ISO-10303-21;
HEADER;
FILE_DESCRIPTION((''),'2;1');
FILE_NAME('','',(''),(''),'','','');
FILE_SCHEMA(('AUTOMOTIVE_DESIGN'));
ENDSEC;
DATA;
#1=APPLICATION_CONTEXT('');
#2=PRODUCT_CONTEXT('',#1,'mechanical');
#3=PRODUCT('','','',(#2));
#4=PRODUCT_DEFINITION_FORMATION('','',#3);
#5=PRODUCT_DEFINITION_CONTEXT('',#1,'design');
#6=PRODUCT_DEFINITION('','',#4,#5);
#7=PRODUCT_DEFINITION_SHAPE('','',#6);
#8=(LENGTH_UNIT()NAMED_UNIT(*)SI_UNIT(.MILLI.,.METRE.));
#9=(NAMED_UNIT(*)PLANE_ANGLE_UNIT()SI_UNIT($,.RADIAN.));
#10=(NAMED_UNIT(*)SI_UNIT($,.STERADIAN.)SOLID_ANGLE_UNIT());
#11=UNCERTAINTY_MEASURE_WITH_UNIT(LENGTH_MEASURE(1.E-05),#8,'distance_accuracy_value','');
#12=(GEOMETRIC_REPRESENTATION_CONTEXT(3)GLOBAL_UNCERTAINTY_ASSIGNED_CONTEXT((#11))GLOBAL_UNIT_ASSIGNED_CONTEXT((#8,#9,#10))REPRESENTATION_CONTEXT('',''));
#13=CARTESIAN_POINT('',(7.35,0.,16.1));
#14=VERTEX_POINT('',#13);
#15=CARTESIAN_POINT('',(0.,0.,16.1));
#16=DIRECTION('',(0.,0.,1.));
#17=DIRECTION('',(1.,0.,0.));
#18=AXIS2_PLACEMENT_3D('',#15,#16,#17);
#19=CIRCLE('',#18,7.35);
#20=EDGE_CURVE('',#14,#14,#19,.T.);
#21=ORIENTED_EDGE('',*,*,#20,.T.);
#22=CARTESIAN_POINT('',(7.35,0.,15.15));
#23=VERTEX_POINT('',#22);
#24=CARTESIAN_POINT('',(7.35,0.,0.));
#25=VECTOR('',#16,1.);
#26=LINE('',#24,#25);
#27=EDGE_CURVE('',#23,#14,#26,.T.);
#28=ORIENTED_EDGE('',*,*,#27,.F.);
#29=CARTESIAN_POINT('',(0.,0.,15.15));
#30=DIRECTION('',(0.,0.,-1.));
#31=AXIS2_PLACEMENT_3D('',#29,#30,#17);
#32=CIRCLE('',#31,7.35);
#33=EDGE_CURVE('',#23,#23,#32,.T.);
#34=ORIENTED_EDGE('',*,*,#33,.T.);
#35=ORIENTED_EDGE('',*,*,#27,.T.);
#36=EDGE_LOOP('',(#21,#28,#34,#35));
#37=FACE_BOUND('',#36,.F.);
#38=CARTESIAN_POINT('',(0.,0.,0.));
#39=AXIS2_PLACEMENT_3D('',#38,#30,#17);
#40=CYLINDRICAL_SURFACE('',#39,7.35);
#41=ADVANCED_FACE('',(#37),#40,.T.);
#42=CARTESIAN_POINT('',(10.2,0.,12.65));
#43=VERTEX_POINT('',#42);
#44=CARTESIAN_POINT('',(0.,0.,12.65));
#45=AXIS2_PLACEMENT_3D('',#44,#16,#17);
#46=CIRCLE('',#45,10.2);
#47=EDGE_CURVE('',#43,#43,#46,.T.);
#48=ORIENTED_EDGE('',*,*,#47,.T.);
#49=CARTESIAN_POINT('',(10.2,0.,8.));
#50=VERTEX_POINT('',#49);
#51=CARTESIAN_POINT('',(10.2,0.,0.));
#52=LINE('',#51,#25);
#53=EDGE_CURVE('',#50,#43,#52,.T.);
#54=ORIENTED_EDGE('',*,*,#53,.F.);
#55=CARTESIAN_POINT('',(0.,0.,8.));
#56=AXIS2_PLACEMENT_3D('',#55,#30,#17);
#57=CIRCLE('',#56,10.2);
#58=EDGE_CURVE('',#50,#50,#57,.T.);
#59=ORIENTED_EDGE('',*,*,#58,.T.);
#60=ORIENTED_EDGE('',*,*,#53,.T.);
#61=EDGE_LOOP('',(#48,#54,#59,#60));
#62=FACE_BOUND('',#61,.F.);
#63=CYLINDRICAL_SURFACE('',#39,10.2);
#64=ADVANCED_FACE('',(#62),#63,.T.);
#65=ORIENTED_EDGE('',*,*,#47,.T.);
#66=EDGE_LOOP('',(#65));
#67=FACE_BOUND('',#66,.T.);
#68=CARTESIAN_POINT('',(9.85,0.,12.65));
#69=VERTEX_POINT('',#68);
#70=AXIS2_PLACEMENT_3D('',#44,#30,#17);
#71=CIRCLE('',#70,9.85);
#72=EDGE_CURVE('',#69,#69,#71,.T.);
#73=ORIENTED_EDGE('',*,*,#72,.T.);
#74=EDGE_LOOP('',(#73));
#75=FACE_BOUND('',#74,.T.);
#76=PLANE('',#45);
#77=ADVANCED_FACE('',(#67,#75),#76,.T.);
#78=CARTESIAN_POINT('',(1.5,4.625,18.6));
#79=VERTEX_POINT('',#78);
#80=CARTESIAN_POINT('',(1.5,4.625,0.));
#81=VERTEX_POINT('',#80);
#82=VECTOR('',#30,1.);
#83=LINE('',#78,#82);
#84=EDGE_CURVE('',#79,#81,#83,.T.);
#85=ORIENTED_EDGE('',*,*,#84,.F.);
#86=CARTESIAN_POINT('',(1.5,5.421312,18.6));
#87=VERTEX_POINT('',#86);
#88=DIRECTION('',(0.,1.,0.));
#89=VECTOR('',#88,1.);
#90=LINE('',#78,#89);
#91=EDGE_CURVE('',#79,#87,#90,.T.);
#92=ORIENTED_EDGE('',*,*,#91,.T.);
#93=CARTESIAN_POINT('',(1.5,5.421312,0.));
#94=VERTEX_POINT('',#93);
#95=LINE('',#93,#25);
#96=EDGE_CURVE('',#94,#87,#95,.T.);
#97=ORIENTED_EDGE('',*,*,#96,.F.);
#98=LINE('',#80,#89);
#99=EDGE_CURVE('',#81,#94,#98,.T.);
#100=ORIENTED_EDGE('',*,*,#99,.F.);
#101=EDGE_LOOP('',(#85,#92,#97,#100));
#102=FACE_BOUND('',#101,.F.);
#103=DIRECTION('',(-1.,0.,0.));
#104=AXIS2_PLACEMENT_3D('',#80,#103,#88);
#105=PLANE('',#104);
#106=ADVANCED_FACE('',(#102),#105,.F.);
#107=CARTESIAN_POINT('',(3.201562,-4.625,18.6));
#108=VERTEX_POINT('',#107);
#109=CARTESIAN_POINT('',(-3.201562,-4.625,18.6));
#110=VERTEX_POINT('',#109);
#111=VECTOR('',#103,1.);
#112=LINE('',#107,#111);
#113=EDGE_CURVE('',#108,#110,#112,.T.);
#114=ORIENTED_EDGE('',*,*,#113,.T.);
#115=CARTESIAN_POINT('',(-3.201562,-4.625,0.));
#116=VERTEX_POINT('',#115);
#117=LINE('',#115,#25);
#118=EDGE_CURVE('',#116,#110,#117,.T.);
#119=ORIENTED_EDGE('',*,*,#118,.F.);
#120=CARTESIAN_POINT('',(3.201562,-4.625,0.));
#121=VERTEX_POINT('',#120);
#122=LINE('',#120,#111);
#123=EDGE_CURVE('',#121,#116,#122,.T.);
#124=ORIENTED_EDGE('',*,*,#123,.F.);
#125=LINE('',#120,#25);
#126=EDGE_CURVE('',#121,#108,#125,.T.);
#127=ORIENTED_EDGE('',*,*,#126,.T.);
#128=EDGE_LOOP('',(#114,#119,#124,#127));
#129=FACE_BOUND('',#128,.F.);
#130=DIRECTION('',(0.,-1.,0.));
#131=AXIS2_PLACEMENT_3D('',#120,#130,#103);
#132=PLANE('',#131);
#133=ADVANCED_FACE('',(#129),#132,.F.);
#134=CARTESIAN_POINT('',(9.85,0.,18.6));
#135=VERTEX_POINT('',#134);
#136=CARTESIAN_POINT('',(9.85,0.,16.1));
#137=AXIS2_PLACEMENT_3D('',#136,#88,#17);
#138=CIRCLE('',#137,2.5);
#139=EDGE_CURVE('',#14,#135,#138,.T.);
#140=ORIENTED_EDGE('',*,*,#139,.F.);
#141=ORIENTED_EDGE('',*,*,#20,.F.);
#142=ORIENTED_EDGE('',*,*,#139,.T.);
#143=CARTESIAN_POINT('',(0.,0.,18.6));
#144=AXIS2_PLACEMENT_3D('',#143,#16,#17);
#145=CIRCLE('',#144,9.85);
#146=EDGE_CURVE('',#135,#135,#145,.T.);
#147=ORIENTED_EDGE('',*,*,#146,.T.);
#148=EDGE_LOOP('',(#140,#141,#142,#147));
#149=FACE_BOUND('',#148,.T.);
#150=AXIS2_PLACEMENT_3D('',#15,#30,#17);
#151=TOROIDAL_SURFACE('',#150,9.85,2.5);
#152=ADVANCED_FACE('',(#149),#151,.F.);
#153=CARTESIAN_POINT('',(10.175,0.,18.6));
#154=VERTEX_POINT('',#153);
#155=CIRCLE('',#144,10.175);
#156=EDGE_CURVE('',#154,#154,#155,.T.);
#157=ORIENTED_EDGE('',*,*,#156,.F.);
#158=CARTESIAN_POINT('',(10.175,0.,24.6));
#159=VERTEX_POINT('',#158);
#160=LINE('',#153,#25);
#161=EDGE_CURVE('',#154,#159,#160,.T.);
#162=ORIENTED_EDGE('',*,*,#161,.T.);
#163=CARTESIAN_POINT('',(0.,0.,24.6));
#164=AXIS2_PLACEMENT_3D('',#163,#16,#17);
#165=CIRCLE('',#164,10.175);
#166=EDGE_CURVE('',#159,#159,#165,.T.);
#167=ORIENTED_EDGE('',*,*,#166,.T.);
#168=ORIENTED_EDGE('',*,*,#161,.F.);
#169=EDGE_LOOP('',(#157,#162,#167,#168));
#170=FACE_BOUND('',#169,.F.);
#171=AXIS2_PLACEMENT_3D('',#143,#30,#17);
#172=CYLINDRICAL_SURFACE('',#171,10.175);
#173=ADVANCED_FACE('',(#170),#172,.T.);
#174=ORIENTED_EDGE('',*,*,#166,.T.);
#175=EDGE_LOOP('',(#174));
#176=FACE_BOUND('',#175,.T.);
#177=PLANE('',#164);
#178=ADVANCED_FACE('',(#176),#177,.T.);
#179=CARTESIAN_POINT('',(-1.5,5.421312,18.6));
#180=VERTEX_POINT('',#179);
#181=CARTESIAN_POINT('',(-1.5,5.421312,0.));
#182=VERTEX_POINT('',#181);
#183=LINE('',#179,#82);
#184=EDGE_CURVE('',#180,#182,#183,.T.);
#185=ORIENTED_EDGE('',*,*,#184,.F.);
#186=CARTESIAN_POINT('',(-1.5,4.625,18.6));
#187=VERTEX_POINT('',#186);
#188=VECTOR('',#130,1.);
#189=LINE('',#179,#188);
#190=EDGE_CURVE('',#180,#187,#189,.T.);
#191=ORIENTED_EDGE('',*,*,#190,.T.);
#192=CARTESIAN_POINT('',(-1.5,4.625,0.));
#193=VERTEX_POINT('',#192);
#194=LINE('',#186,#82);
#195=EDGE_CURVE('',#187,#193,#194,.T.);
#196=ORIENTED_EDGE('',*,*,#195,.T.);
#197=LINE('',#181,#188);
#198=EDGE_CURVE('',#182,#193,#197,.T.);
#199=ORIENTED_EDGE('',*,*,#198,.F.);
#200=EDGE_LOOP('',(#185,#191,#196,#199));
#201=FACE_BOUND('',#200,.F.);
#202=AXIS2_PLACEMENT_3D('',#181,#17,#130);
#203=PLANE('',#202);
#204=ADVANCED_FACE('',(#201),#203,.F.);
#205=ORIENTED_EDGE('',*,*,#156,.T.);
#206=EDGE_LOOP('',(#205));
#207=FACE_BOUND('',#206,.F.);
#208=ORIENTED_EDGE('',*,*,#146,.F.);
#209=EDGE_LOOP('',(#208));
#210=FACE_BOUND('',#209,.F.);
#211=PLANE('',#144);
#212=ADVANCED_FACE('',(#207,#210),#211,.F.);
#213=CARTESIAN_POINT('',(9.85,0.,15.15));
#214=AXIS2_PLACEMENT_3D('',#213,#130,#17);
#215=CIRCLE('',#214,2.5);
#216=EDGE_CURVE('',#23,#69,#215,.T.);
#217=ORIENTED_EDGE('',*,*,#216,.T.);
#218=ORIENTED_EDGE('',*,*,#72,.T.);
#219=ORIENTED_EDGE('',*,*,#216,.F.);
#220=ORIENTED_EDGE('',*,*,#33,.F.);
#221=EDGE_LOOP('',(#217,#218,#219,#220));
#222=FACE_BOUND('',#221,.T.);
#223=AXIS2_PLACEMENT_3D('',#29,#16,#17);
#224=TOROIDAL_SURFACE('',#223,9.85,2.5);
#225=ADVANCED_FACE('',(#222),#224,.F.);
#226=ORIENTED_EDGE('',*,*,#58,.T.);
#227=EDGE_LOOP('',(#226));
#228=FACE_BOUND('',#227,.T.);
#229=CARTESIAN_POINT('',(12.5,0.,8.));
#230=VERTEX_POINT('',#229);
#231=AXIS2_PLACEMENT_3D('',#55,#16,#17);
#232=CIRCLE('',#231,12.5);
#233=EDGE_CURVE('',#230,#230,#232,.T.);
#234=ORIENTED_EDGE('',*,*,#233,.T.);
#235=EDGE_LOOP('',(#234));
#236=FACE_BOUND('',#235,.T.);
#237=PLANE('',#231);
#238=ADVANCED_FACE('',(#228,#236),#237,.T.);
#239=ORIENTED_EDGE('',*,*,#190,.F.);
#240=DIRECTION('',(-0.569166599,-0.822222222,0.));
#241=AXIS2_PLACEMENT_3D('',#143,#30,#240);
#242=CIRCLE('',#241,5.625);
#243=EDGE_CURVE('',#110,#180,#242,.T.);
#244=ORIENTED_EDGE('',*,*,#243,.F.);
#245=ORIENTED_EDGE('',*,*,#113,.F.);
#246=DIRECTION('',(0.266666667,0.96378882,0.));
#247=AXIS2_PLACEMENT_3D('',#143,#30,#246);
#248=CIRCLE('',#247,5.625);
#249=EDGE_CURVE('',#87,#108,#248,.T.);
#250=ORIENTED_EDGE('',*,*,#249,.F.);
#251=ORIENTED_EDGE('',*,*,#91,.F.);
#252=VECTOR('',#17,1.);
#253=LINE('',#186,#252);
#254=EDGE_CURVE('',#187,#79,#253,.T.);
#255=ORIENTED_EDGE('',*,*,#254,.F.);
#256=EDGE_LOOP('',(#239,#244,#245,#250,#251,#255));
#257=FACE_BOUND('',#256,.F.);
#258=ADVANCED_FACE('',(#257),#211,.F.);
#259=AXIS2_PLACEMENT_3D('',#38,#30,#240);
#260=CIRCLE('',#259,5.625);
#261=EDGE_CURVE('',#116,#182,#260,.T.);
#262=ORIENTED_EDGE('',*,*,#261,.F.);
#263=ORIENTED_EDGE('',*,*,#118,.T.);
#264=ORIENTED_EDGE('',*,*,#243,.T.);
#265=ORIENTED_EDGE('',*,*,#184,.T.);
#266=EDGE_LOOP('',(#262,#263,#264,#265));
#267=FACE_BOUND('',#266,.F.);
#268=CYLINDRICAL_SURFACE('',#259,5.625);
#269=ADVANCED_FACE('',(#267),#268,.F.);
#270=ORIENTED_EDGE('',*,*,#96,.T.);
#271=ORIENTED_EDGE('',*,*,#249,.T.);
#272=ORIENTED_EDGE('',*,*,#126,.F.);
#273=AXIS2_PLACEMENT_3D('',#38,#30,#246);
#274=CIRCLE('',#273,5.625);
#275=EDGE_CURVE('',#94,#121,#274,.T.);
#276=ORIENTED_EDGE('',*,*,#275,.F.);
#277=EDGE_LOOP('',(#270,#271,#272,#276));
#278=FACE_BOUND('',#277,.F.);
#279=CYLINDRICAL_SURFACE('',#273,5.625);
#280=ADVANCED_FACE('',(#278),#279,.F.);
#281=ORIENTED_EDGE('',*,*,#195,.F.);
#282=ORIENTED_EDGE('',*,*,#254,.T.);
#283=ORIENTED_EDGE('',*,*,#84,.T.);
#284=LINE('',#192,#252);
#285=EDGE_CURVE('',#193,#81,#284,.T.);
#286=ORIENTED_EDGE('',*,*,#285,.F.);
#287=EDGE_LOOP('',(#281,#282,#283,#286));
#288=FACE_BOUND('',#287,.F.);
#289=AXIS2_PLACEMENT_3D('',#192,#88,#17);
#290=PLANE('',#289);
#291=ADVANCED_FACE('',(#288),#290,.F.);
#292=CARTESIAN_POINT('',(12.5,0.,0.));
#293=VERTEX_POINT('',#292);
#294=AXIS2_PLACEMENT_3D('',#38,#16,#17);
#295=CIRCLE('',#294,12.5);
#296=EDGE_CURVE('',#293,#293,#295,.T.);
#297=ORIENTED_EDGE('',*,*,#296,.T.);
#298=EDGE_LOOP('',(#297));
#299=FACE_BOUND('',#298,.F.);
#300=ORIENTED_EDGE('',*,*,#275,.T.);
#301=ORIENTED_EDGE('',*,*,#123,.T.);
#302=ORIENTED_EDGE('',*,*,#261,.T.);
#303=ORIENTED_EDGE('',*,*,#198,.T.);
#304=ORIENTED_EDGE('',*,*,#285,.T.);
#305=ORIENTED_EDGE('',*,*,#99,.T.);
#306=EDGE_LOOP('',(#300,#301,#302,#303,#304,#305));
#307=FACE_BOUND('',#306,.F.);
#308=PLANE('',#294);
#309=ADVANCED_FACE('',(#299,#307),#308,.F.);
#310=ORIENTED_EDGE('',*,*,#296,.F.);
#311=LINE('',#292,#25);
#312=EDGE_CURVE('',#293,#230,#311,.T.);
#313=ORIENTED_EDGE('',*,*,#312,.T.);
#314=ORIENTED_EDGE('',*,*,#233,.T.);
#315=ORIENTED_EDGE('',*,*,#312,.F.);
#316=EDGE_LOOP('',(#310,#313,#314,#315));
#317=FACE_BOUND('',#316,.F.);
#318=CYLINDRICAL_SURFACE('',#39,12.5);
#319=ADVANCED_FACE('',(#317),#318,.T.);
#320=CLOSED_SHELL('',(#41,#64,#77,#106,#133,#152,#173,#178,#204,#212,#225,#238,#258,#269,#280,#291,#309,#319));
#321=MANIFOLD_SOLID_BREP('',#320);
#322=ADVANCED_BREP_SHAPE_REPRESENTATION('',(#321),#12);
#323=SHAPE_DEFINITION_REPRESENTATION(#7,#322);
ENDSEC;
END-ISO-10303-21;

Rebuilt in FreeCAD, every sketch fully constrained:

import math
import FreeCAD as App
import Part
import Sketcher
Q = App.Units.Quantity


def edges_at(feature, points):
    """Names of the edges that pass closest to the given points."""
    edges = feature.Shape.Edges
    near = lambda p: min(range(len(edges)), key=lambda i: edges[i].distToShape(Part.Vertex(*p))[0])
    return sorted({f"Edge{near(p) + 1}" for p in points})

doc = App.newDocument("Part")
body = doc.addObject("PartDesign::Body", "Body")

sketch1 = body.newObject("Sketcher::SketchObject", "Sketch")
sketch1.AttachmentSupport = (doc.getObject("XY_Plane"), [""])
sketch1.MapMode = "FlatFace"
sketch1.addGeometry([
    Part.Circle(App.Vector(0, 0, 0), App.Vector(0, 0, 1), 12.5),
    Part.LineSegment(App.Vector(1.5, 4.6, 0), App.Vector(1.5, 5.4, 0)),
    Part.ArcOfCircle(Part.Circle(App.Vector(0, 0, 0), App.Vector(0, 0, 1), 5.6), math.radians(-55), math.radians(75)),
    Part.LineSegment(App.Vector(3.2, -4.6, 0), App.Vector(-3.2, -4.6, 0)),
    Part.ArcOfCircle(Part.Circle(App.Vector(0, 0, 0), App.Vector(0, 0, 1), 5.6), math.radians(105), math.radians(235)),
    Part.LineSegment(App.Vector(-1.5, 5.4, 0), App.Vector(-1.5, 4.6, 0)),
    Part.LineSegment(App.Vector(-1.5, 4.6, 0), App.Vector(1.5, 4.6, 0)),
], False)
sketch1.addConstraint([
    Sketcher.Constraint("Coincident", 1, 2, 2, 2),
    Sketcher.Constraint("Coincident", 2, 1, 3, 1),
    Sketcher.Constraint("Coincident", 3, 2, 4, 2),
    Sketcher.Constraint("Coincident", 4, 1, 5, 1),
    Sketcher.Constraint("Coincident", 5, 2, 6, 1),
    Sketcher.Constraint("Coincident", 6, 2, 1, 1),
    Sketcher.Constraint("Vertical", 1),
    Sketcher.Constraint("Horizontal", 3),
    Sketcher.Constraint("Vertical", 5),
    Sketcher.Constraint("Horizontal", 6),
    Sketcher.Constraint("Coincident", 0, 3, -1, 1),
    Sketcher.Constraint("Coincident", 2, 3, -1, 1),
    Sketcher.Constraint("Coincident", 4, 3, -1, 1),
    Sketcher.Constraint("Equal", 2, 4),
    Sketcher.Constraint("Horizontal", 1, 2, 4, 1),
    Sketcher.Constraint("Diameter", 0, Q("25 mm")),
    Sketcher.Constraint("DistanceX", 6, 1, 6, 2, Q("3 mm")),
    Sketcher.Constraint("Radius", 2, Q("5.625 mm")),
    Sketcher.Constraint("DistanceY", 2, 1, -1, 1, Q("4.625 mm")),
    Sketcher.Constraint("DistanceY", -1, 1, 5, 2, Q("4.625 mm")),
])
pad1 = body.newObject("PartDesign::Pad", "Pad")
pad1.Profile = sketch1
pad1.Length = 8

sketch2 = body.newObject("Sketcher::SketchObject", "Sketch001")
sketch2.AttachmentSupport = (doc.getObject("XY_Plane"), [""])
sketch2.MapMode = "FlatFace"
sketch2.addGeometry([
    Part.Circle(App.Vector(0, 0, 0), App.Vector(0, 0, 1), 10.2),
    Part.LineSegment(App.Vector(1.5, 4.6, 0), App.Vector(1.5, 5.4, 0)),
    Part.ArcOfCircle(Part.Circle(App.Vector(0, 0, 0), App.Vector(0, 0, 1), 5.6), math.radians(-55), math.radians(75)),
    Part.LineSegment(App.Vector(3.2, -4.6, 0), App.Vector(-3.2, -4.6, 0)),
    Part.ArcOfCircle(Part.Circle(App.Vector(0, 0, 0), App.Vector(0, 0, 1), 5.6), math.radians(105), math.radians(235)),
    Part.LineSegment(App.Vector(-1.5, 5.4, 0), App.Vector(-1.5, 4.6, 0)),
    Part.LineSegment(App.Vector(-1.5, 4.6, 0), App.Vector(1.5, 4.6, 0)),
], False)
sketch2.addConstraint([
    Sketcher.Constraint("Coincident", 1, 2, 2, 2),
    Sketcher.Constraint("Coincident", 2, 1, 3, 1),
    Sketcher.Constraint("Coincident", 3, 2, 4, 2),
    Sketcher.Constraint("Coincident", 4, 1, 5, 1),
    Sketcher.Constraint("Coincident", 5, 2, 6, 1),
    Sketcher.Constraint("Coincident", 6, 2, 1, 1),
    Sketcher.Constraint("Vertical", 1),
    Sketcher.Constraint("Horizontal", 3),
    Sketcher.Constraint("Vertical", 5),
    Sketcher.Constraint("Horizontal", 6),
    Sketcher.Constraint("Coincident", 0, 3, -1, 1),
    Sketcher.Constraint("Coincident", 2, 3, -1, 1),
    Sketcher.Constraint("Coincident", 4, 3, -1, 1),
    Sketcher.Constraint("Equal", 2, 4),
    Sketcher.Constraint("Horizontal", 1, 2, 4, 1),
    Sketcher.Constraint("Diameter", 0, Q("20.4 mm")),
    Sketcher.Constraint("DistanceX", 6, 1, 6, 2, Q("3 mm")),
    Sketcher.Constraint("Radius", 2, Q("5.625 mm")),
    Sketcher.Constraint("DistanceY", 2, 1, -1, 1, Q("4.625 mm")),
    Sketcher.Constraint("DistanceY", -1, 1, 5, 2, Q("4.625 mm")),
])
pad2 = body.newObject("PartDesign::Pad", "Pad001")
pad2.Profile = sketch2
pad2.Length = 12.65

sketch3 = body.newObject("Sketcher::SketchObject", "Sketch002")
sketch3.AttachmentSupport = (doc.getObject("XY_Plane"), [""])
sketch3.MapMode = "FlatFace"
sketch3.addGeometry([
    Part.Circle(App.Vector(0, 0, 0), App.Vector(0, 0, 1), 7.3),
    Part.LineSegment(App.Vector(1.5, 4.6, 0), App.Vector(1.5, 5.4, 0)),
    Part.ArcOfCircle(Part.Circle(App.Vector(0, 0, 0), App.Vector(0, 0, 1), 5.6), math.radians(-55), math.radians(75)),
    Part.LineSegment(App.Vector(3.2, -4.6, 0), App.Vector(-3.2, -4.6, 0)),
    Part.ArcOfCircle(Part.Circle(App.Vector(0, 0, 0), App.Vector(0, 0, 1), 5.6), math.radians(105), math.radians(235)),
    Part.LineSegment(App.Vector(-1.5, 5.4, 0), App.Vector(-1.5, 4.6, 0)),
    Part.LineSegment(App.Vector(-1.5, 4.6, 0), App.Vector(1.5, 4.6, 0)),
], False)
sketch3.addConstraint([
    Sketcher.Constraint("Coincident", 1, 2, 2, 2),
    Sketcher.Constraint("Coincident", 2, 1, 3, 1),
    Sketcher.Constraint("Coincident", 3, 2, 4, 2),
    Sketcher.Constraint("Coincident", 4, 1, 5, 1),
    Sketcher.Constraint("Coincident", 5, 2, 6, 1),
    Sketcher.Constraint("Coincident", 6, 2, 1, 1),
    Sketcher.Constraint("Vertical", 1),
    Sketcher.Constraint("Horizontal", 3),
    Sketcher.Constraint("Vertical", 5),
    Sketcher.Constraint("Horizontal", 6),
    Sketcher.Constraint("Coincident", 0, 3, -1, 1),
    Sketcher.Constraint("Coincident", 2, 3, -1, 1),
    Sketcher.Constraint("Coincident", 4, 3, -1, 1),
    Sketcher.Constraint("Equal", 2, 4),
    Sketcher.Constraint("Horizontal", 1, 2, 4, 1),
    Sketcher.Constraint("Diameter", 0, Q("14.7 mm")),
    Sketcher.Constraint("DistanceX", 6, 1, 6, 2, Q("3 mm")),
    Sketcher.Constraint("Radius", 2, Q("5.625 mm")),
    Sketcher.Constraint("DistanceY", 2, 1, -1, 1, Q("4.625 mm")),
    Sketcher.Constraint("DistanceY", -1, 1, 5, 2, Q("4.625 mm")),
])
pad3 = body.newObject("PartDesign::Pad", "Pad002")
pad3.Profile = sketch3
pad3.Length = 18.6

sketch4 = body.newObject("Sketcher::SketchObject", "Sketch003")
sketch4.AttachmentSupport = (doc.getObject("XY_Plane"), [""])
sketch4.MapMode = "FlatFace"
sketch4.AttachmentOffset = App.Placement(App.Vector(0, 0, 18.6), App.Rotation())
sketch4.addGeometry(Part.Circle(App.Vector(0, 0, 0), App.Vector(0, 0, 1), 10), False)
sketch4.addConstraint([
    Sketcher.Constraint("Coincident", 0, 3, -1, 1),
    Sketcher.Constraint("Diameter", 0, Q("20.35 mm")),
])
pad4 = body.newObject("PartDesign::Pad", "Pad003")
pad4.Profile = sketch4
pad4.Length = 6
doc.recompute()

fillet = body.newObject("PartDesign::Fillet", "Fillet")
fillet.Base = (pad4, edges_at(pad4, [(-7.35, 0, 12.65)]))
fillet.Radius = 2.5
doc.recompute()

fillet2 = body.newObject("PartDesign::Fillet", "Fillet001")
fillet2.Base = (fillet, edges_at(fillet, [(-7.35, 0, 18.6)]))
fillet2.Radius = 2.5

doc.recompute()
